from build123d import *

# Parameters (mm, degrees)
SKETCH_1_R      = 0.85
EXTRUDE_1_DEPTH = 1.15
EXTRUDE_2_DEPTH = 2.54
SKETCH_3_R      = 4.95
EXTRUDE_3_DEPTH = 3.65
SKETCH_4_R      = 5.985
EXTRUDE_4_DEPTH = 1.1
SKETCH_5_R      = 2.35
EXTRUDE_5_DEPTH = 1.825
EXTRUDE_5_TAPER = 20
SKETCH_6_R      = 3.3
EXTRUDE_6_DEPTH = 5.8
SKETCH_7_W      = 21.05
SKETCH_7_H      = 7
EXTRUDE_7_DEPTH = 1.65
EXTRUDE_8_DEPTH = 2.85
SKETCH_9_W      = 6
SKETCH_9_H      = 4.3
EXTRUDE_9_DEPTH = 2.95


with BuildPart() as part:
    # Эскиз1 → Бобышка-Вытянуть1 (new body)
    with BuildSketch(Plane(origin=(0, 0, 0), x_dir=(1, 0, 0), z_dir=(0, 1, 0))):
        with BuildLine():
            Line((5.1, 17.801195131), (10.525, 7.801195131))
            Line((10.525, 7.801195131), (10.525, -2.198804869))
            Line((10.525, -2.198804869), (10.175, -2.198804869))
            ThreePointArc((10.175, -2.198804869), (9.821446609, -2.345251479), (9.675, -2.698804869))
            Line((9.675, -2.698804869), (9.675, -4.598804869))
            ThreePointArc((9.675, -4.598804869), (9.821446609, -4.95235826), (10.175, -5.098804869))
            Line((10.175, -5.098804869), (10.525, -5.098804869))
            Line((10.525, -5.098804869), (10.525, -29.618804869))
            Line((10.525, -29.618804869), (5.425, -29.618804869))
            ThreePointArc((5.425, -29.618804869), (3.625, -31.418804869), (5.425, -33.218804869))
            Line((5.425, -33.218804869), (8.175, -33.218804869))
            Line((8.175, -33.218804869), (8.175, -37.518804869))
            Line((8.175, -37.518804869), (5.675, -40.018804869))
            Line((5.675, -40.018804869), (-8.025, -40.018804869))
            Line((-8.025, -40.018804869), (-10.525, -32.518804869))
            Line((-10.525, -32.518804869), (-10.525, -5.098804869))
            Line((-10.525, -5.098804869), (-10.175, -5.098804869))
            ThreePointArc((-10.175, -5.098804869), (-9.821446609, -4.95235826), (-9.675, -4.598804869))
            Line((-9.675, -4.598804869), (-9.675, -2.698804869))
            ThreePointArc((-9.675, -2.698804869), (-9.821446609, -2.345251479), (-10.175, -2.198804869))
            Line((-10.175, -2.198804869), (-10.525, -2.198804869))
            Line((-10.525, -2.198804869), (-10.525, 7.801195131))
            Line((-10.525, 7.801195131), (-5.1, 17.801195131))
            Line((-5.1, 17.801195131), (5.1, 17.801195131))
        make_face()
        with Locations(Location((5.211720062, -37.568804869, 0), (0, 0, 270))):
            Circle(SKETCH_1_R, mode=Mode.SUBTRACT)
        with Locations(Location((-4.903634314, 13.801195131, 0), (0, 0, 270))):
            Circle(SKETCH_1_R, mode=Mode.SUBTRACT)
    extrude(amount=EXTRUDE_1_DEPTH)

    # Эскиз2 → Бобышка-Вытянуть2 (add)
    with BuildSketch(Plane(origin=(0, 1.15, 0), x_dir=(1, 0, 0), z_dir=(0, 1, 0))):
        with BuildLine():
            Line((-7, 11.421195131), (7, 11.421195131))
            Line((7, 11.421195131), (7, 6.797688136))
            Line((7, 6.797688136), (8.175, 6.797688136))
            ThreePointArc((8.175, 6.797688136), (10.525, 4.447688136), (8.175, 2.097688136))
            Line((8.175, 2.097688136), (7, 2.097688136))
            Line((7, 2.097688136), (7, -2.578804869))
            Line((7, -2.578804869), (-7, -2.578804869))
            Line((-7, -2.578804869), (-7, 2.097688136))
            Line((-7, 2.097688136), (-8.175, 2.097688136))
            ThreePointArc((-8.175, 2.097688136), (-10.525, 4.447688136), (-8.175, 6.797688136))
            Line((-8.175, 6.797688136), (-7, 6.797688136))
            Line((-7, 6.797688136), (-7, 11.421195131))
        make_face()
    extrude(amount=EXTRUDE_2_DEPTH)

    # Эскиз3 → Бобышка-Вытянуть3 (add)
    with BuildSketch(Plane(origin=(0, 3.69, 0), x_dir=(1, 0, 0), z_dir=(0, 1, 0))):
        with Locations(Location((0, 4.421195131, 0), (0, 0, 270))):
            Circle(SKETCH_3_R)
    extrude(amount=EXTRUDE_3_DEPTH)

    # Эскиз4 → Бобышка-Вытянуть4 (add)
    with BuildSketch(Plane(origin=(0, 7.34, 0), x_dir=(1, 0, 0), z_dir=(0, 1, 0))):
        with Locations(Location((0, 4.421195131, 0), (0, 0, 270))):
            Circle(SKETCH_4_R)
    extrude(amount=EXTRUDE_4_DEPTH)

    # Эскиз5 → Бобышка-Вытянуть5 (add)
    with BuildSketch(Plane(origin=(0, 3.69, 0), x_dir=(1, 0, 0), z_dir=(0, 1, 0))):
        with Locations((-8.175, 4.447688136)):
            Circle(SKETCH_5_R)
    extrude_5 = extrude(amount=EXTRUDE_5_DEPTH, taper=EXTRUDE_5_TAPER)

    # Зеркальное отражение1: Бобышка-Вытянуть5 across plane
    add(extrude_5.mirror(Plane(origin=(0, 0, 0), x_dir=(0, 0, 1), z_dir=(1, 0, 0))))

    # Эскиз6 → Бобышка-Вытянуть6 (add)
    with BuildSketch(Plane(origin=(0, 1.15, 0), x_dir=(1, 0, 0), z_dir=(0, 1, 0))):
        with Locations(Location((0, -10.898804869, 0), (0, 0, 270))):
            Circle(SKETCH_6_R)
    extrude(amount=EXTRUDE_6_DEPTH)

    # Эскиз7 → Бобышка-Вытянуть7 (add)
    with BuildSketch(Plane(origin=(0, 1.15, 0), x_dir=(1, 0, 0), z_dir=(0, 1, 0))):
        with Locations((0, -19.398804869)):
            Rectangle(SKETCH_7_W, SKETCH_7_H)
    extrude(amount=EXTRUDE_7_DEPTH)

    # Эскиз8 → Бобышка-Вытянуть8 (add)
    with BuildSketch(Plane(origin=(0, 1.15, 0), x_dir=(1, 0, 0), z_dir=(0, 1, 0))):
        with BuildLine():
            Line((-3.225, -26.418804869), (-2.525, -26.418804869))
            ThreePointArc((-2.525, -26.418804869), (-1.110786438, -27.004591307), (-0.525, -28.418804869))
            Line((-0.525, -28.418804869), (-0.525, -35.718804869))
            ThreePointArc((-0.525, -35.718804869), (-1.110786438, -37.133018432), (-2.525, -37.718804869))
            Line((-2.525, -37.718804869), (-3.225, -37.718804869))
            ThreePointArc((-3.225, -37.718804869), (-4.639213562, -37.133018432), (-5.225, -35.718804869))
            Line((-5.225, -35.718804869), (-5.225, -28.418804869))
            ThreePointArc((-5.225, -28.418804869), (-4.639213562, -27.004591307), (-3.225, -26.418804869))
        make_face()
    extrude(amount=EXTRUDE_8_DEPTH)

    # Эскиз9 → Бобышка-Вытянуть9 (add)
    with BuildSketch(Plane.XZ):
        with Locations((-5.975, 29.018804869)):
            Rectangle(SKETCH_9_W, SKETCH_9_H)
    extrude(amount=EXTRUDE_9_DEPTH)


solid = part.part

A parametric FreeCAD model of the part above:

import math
import FreeCAD as App
import Part
import Sketcher
from FreeCAD import Vector
Q = App.Units.Quantity

doc = App.newDocument("Part")
params = doc.addObject("Spreadsheet::Sheet", "Params")
for row, (alias, value) in enumerate([
    ("sketch1_diameter", "1.7 mm"),
    ("sketch1_radius", "0.5 mm"),
    ("sketch1_radius2", "1.8 mm"),
    ("sketch1_height", "10 mm"),
    ("sketch1_width", "10.2 mm"),
    ("pad1_length", "1.15 mm"),
    ("sketch2_width", "14 mm"),
    ("sketch2_radius", "2.35 mm"),
    ("pad2_length", "2.54 mm"),
    ("sketch3_diameter", "9.9 mm"),
    ("pad3_length", "3.65 mm"),
    ("sketch4_diameter", "11.97 mm"),
    ("pad4_length", "1.1 mm"),
    ("sketch5_diameter", "4.7 mm"),
    ("pad5_length", "1.825 mm"),
    ("pad5_taper", "-20 deg"),
    ("sketch6_diameter", "6.6 mm"),
    ("pad6_length", "5.8 mm"),
    ("sketch7_height", "7 mm"),
    ("sketch7_width", "21.05 mm"),
    ("pad7_length", "1.65 mm"),
    ("sketch8_radius", "2 mm"),
    ("sketch8_width", "0.7 mm"),
    ("sketch8_height", "7.3 mm"),
    ("pad8_length", "2.85 mm"),
    ("sketch9_width", "6 mm"),
    ("sketch9_height", "4.3 mm"),
    ("pad9_length", "2.95 mm"),
], start=1):
    params.set(f"A{row}", alias)
    params.set(f"B{row}", "=" + value)
    params.setAlias(f"B{row}", alias)

body = doc.addObject("PartDesign::Body", "Body")

# Sketch on XZ plane
sketch1 = body.newObject("Sketcher::SketchObject", "Sketch")
sketch1.AttachmentSupport = (doc.getObject("XZ_Plane"), [""])
sketch1.MapMode = "FlatFace"
sketch1.addGeometry(Part.LineSegment(Vector(10.53, -7.8, 0), Vector(5.1, -17.8, 0)), False)
sketch1.addGeometry(Part.LineSegment(Vector(5.1, -17.8, 0), Vector(-5.1, -17.8, 0)), False)
sketch1.addGeometry(Part.LineSegment(Vector(-5.1, -17.8, 0), Vector(-10.53, -7.8, 0)), False)
sketch1.addGeometry(Part.LineSegment(Vector(-10.53, -7.8, 0), Vector(-10.53, 2.2, 0)), False)
sketch1.addGeometry(Part.LineSegment(Vector(-10.53, 2.2, 0), Vector(-10.18, 2.2, 0)), False)
sketch1.addGeometry(Part.ArcOfCircle(Part.Circle(Vector(-10.18, 2.7, 0), Vector(0, 0, 1), 0.5), math.radians(-90), math.radians(0)), False)
sketch1.addGeometry(Part.LineSegment(Vector(-9.68, 2.7, 0), Vector(-9.68, 4.6, 0)), False)
sketch1.addGeometry(Part.ArcOfCircle(Part.Circle(Vector(-10.17, 4.6, 0), Vector(0, 0, 1), 0.5), math.radians(0), math.radians(90)), False)
sketch1.addGeometry(Part.LineSegment(Vector(-10.18, 5.1, 0), Vector(-10.53, 5.1, 0)), False)
sketch1.addGeometry(Part.LineSegment(Vector(-10.53, 5.1, 0), Vector(-10.53, 32.52, 0)), False)
sketch1.addGeometry(Part.LineSegment(Vector(-10.53, 32.52, 0), Vector(-8.03, 40.02, 0)), False)
sketch1.addGeometry(Part.LineSegment(Vector(-8.03, 40.02, 0), Vector(5.67, 40.02, 0)), False)
sketch1.addGeometry(Part.LineSegment(Vector(5.67, 40.02, 0), Vector(8.18, 37.52, 0)), False)
sketch1.addGeometry(Part.LineSegment(Vector(8.18, 37.52, 0), Vector(8.18, 33.22, 0)), False)
sketch1.addGeometry(Part.LineSegment(Vector(8.18, 33.22, 0), Vector(5.42, 33.22, 0)), False)
sketch1.addGeometry(Part.ArcOfCircle(Part.Circle(Vector(5.42, 31.42, 0), Vector(0, 0, 1), 1.8), math.radians(90), math.radians(270)), False)
sketch1.addGeometry(Part.LineSegment(Vector(5.42, 29.62, 0), Vector(10.53, 29.62, 0)), False)
sketch1.addGeometry(Part.LineSegment(Vector(10.53, 29.62, 0), Vector(10.53, 5.1, 0)), False)
sketch1.addGeometry(Part.LineSegment(Vector(10.53, 5.1, 0), Vector(10.18, 5.1, 0)), False)
sketch1.addGeometry(Part.ArcOfCircle(Part.Circle(Vector(10.17, 4.6, 0), Vector(0, 0, 1), 0.5), math.radians(90), math.radians(180)), False)
sketch1.addGeometry(Part.LineSegment(Vector(9.68, 4.6, 0), Vector(9.68, 2.7, 0)), False)
sketch1.addGeometry(Part.ArcOfCircle(Part.Circle(Vector(10.18, 2.7, 0), Vector(0, 0, 1), 0.5), math.radians(180), math.radians(270)), False)
sketch1.addGeometry(Part.LineSegment(Vector(10.18, 2.2, 0), Vector(10.53, 2.2, 0)), False)
sketch1.addGeometry(Part.LineSegment(Vector(10.53, 2.2, 0), Vector(10.53, -7.8, 0)), False)
sketch1.addGeometry(Part.Circle(Vector(5.21, 37.57, 0), Vector(0, 0, 1), 0.85), False)
sketch1.addGeometry(Part.Circle(Vector(-4.9, -13.8, 0), Vector(0, 0, 1), 0.85), False)
sketch1.addConstraint(Sketcher.Constraint("Coincident", 0, 2, 1, 1))
sketch1.addConstraint(Sketcher.Constraint("Coincident", 1, 2, 2, 1))
sketch1.addConstraint(Sketcher.Constraint("Coincident", 2, 2, 3, 1))
sketch1.addConstraint(Sketcher.Constraint("Coincident", 3, 2, 4, 1))
sketch1.addConstraint(Sketcher.Constraint("Tangent", 4, 2, 5, 1))
sketch1.addConstraint(Sketcher.Constraint("Tangent", 5, 2, 6, 1))
sketch1.addConstraint(Sketcher.Constraint("Tangent", 6, 2, 7, 1))
sketch1.addConstraint(Sketcher.Constraint("Tangent", 7, 2, 8, 1))
sketch1.addConstraint(Sketcher.Constraint("Coincident", 8, 2, 9, 1))
sketch1.addConstraint(Sketcher.Constraint("Coincident", 9, 2, 10, 1))
sketch1.addConstraint(Sketcher.Constraint("Coincident", 10, 2, 11, 1))
sketch1.addConstraint(Sketcher.Constraint("Coincident", 11, 2, 12, 1))
sketch1.addConstraint(Sketcher.Constraint("Coincident", 12, 2, 13, 1))
sketch1.addConstraint(Sketcher.Constraint("Coincident", 13, 2, 14, 1))
sketch1.addConstraint(Sketcher.Constraint("Tangent", 14, 2, 15, 1))
sketch1.addConstraint(Sketcher.Constraint("Tangent", 15, 2, 16, 1))
sketch1.addConstraint(Sketcher.Constraint("Coincident", 16, 2, 17, 1))
sketch1.addConstraint(Sketcher.Constraint("Coincident", 17, 2, 18, 1))
sketch1.addConstraint(Sketcher.Constraint("Tangent", 18, 2, 19, 1))
sketch1.addConstraint(Sketcher.Constraint("Tangent", 19, 2, 20, 1))
sketch1.addConstraint(Sketcher.Constraint("Tangent", 20, 2, 21, 1))
sketch1.addConstraint(Sketcher.Constraint("Tangent", 21, 2, 22, 1))
sketch1.addConstraint(Sketcher.Constraint("Coincident", 22, 2, 23, 1))
sketch1.addConstraint(Sketcher.Constraint("Coincident", 23, 2, 0, 1))
sketch1.addConstraint(Sketcher.Constraint("Horizontal", 1))
sketch1.addConstraint(Sketcher.Constraint("Vertical", 3))
sketch1.addConstraint(Sketcher.Constraint("Horizontal", 4))
sketch1.addConstraint(Sketcher.Constraint("Vertical", 6))
sketch1.addConstraint(Sketcher.Constraint("Horizontal", 8))
sketch1.addConstraint(Sketcher.Constraint("Vertical", 9))
sketch1.addConstraint(Sketcher.Constraint("Horizontal", 11))
sketch1.addConstraint(Sketcher.Constraint("Vertical", 13))
sketch1.addConstraint(Sketcher.Constraint("Horizontal", 14))
sketch1.addConstraint(Sketcher.Constraint("Horizontal", 16))
sketch1.addConstraint(Sketcher.Constraint("Vertical", 17))
sketch1.addConstraint(Sketcher.Constraint("Horizontal", 18))
sketch1.addConstraint(Sketcher.Constraint("Vertical", 20))
sketch1.addConstraint(Sketcher.Constraint("Horizontal", 22))
sketch1.addConstraint(Sketcher.Constraint("Vertical", 23))
sketch1.addConstraint(Sketcher.Constraint("Equal", 5, 7))
sketch1.addConstraint(Sketcher.Constraint("Equal", 7, 19))
sketch1.addConstraint(Sketcher.Constraint("Equal", 19, 21))
sketch1.addConstraint(Sketcher.Constraint("Equal", 24, 25))
sketch1.addConstraint(Sketcher.Constraint("Symmetric", 7, 3, 19, 3, -2))
sketch1.addConstraint(Sketcher.Constraint("Symmetric", 3, 2, 22, 2, -2))
sketch1.addConstraint(Sketcher.Constraint("Horizontal", 2, 2, 23, 2))
sketch1.addConstraint(Sketcher.Constraint("Vertical", 3, 2, 8, 2))
sketch1.addConstraint(Sketcher.Constraint("Vertical", 17, 2, 22, 2))
sketch1.addConstraint(Sketcher.Constraint("Equal", 0, 2))
sketch1.addConstraint(Sketcher.Constraint("Diameter", 24, Q("1.7 mm")))
sketch1.addConstraint(Sketcher.Constraint("Radius", 5, Q("0.5 mm")))
sketch1.addConstraint(Sketcher.Constraint("Radius", 15, Q("1.8 mm")))
sketch1.addConstraint(Sketcher.Constraint("DistanceY", 3, 1, 3, 2, Q("10 mm")))
sketch1.addConstraint(Sketcher.Constraint("Angle", 12, Q("-45 deg")))
sketch1.addConstraint(Sketcher.Constraint("DistanceX", 1, 2, 1, 1, Q("10.2 mm")))
sketch1.addConstraint(Sketcher.Constraint("DistanceX", 11, 1, 11, 2, Q("13.7 mm")))
sketch1.addConstraint(Sketcher.Constraint("DistanceX", 16, 1, 16, 2, Q("5.1 mm")))
sketch1.addConstraint(Sketcher.Constraint("DistanceY", 6, 1, 6, 2, Q("1.9 mm")))
sketch1.addConstraint(Sketcher.Constraint("DistanceY", 13, 2, 13, 1, Q("4.3 mm")))
sketch1.addConstraint(Sketcher.Constraint("DistanceY", 0, 2, 25, 3, Q("4 mm")))
sketch1.addConstraint(Sketcher.Constraint("DistanceY", 25, 3, 2, 2, Q("6 mm")))
sketch1.addConstraint(Sketcher.Constraint("DistanceY", 9, 2, 12, 2, Q("5 mm")))
sketch1.addConstraint(Sketcher.Constraint("DistanceX", 4, 1, 4, 2, Q("0.35 mm")))
sketch1.addConstraint(Sketcher.Constraint("DistanceX", 14, 2, 14, 1, Q("2.75 mm")))
sketch1.addConstraint(Sketcher.Constraint("DistanceY", 9, 1, 9, 2, Q("27.42 mm")))
sketch1.addConstraint(Sketcher.Constraint("DistanceX", 7, 3, 15, 3, Q("15.6 mm")))
sketch1.addConstraint(Sketcher.Constraint("DistanceX", 9, 2, 10, 2, Q("2.5 mm")))
sketch1.addConstraint(Sketcher.Constraint("DistanceY", 15, 3, 24, 3, Q("6.15 mm")))
sketch1.addConstraint(Sketcher.Constraint("DistanceX", -1, 1, 24, 3, Q("5.21172 mm")))
sketch1.addConstraint(Sketcher.Constraint("DistanceY", -1, 1, 5, 3, Q("2.698805 mm")))
sketch1.addConstraint(Sketcher.Constraint("DistanceX", 25, 3, -1, 1, Q("4.903634 mm")))
sketch1.setExpression("Constraints[49]", "Params.sketch1_diameter")
sketch1.setExpression("Constraints[50]", "Params.sketch1_radius")
sketch1.setExpression("Constraints[51]", "Params.sketch1_radius2")
sketch1.setExpression("Constraints[52]", "Params.sketch1_height")
sketch1.setExpression("Constraints[54]", "Params.sketch1_width")
pad1 = body.newObject("PartDesign::Pad", "Pad")
pad1.Profile = sketch1
pad1.setExpression("Length", "Params.pad1_length")
pad1.Reversed = True

# Sketch on XZ plane
sketch2 = body.newObject("Sketcher::SketchObject", "Sketch001")
sketch2.AttachmentSupport = (doc.getObject("XZ_Plane"), [""])
sketch2.MapMode = "FlatFace"
sketch2.AttachmentOffset = App.Placement(Vector(0, 0, -1.15), App.Rotation())
sketch2.addGeometry(Part.LineSegment(Vector(7, -11.4, 0), Vector(-7, -11.4, 0)), False)
sketch2.addGeometry(Part.LineSegment(Vector(-7, -11.4, 0), Vector(-7, -6.8, 0)), False)
sketch2.addGeometry(Part.LineSegment(Vector(-7, -6.8, 0), Vector(-8.2, -6.8, 0)), False)
sketch2.addGeometry(Part.ArcOfCircle(Part.Circle(Vector(-8.2, -4.4, 0), Vector(0, 0, 1), 2.4), math.radians(90), math.radians(270)), False)
sketch2.addGeometry(Part.LineSegment(Vector(-8.2, -2.1, 0), Vector(-7, -2.1, 0)), False)
sketch2.addGeometry(Part.LineSegment(Vector(-7, -2.1, 0), Vector(-7, 2.6, 0)), False)
sketch2.addGeometry(Part.LineSegment(Vector(-7, 2.6, 0), Vector(7, 2.6, 0)), False)
sketch2.addGeometry(Part.LineSegment(Vector(7, 2.6, 0), Vector(7, -2.1, 0)), False)
sketch2.addGeometry(Part.LineSegment(Vector(7, -2.1, 0), Vector(8.2, -2.1, 0)), False)
sketch2.addGeometry(Part.ArcOfCircle(Part.Circle(Vector(8.2, -4.4, 0), Vector(0, 0, 1), 2.4), math.radians(-90), math.radians(90)), False)
sketch2.addGeometry(Part.LineSegment(Vector(8.2, -6.8, 0), Vector(7, -6.8, 0)), False)
sketch2.addGeometry(Part.LineSegment(Vector(7, -6.8, 0), Vector(7, -11.4, 0)), False)
sketch2.addConstraint(Sketcher.Constraint("Coincident", 0, 2, 1, 1))
sketch2.addConstraint(Sketcher.Constraint("Coincident", 1, 2, 2, 1))
sketch2.addConstraint(Sketcher.Constraint("Tangent", 2, 2, 3, 2))
sketch2.addConstraint(Sketcher.Constraint("Tangent", 3, 1, 4, 1))
sketch2.addConstraint(Sketcher.Constraint("Coincident", 4, 2, 5, 1))
sketch2.addConstraint(Sketcher.Constraint("Coincident", 5, 2, 6, 1))
sketch2.addConstraint(Sketcher.Constraint("Coincident", 6, 2, 7, 1))
sketch2.addConstraint(Sketcher.Constraint("Coincident", 7, 2, 8, 1))
sketch2.addConstraint(Sketcher.Constraint("Tangent", 8, 2, 9, 2))
sketch2.addConstraint(Sketcher.Constraint("Tangent", 9, 1, 10, 1))
sketch2.addConstraint(Sketcher.Constraint("Coincident", 10, 2, 11, 1))
sketch2.addConstraint(Sketcher.Constraint("Coincident", 11, 2, 0, 1))
sketch2.addConstraint(Sketcher.Constraint("Horizontal", 0))
sketch2.addConstraint(Sketcher.Constraint("Vertical", 1))
sketch2.addConstraint(Sketcher.Constraint("Horizontal", 2))
sketch2.addConstraint(Sketcher.Constraint("Horizontal", 4))
sketch2.addConstraint(Sketcher.Constraint("Vertical", 5))
sketch2.addConstraint(Sketcher.Constraint("Horizontal", 6))
sketch2.addConstraint(Sketcher.Constraint("Vertical", 7))
sketch2.addConstraint(Sketcher.Constraint("Horizontal", 8))
sketch2.addConstraint(Sketcher.Constraint("Horizontal", 10))
sketch2.addConstraint(Sketcher.Constraint("Vertical", 11))
sketch2.addConstraint(Sketcher.Constraint("Equal", 3, 9))
sketch2.addConstraint(Sketcher.Constraint("Symmetric", 3, 3, 9, 3, -2))
sketch2.addConstraint(Sketcher.Constraint("Vertical", 1, 2, 4, 2))
sketch2.addConstraint(Sketcher.Constraint("Vertical", 7, 2, 10, 2))
sketch2.addConstraint(Sketcher.Constraint("Equal", 4, 8))
sketch2.addConstraint(Sketcher.Constraint("DistanceX", 0, 2, 0, 1, Q("14 mm")))
sketch2.addConstraint(Sketcher.Constraint("Radius", 3, Q("2.35 mm")))
sketch2.addConstraint(Sketcher.Constraint("DistanceX", 2, 2, 2, 1, Q("1.175 mm")))
sketch2.addConstraint(Sketcher.Constraint("DistanceY", 1, 1, 1, 2, Q("4.623507 mm")))
sketch2.addConstraint(Sketcher.Constraint("DistanceY", 5, 1, 5, 2, Q("4.676493 mm")))
sketch2.addConstraint(Sketcher.Constraint("DistanceY", 3, 3, -1, 1, Q("4.447688 mm")))
sketch2.setExpression("Constraints[27]", "Params.sketch2_width")
sketch2.setExpression("Constraints[28]", "Params.sketch2_radius")
pad2 = body.newObject("PartDesign::Pad", "Pad001")
pad2.Profile = sketch2
pad2.setExpression("Length", "Params.pad2_length")
pad2.Reversed = True

# Sketch on XZ plane
sketch3 = body.newObject("Sketcher::SketchObject", "Sketch002")
sketch3.AttachmentSupport = (doc.getObject("XZ_Plane"), [""])
sketch3.MapMode = "FlatFace"
sketch3.AttachmentOffset = App.Placement(Vector(0, 0, -3.69), App.Rotation())
sketch3.addGeometry(Part.Circle(Vector(0, -4.4, 0), Vector(0, 0, 1), 5), False)
sketch3.addConstraint(Sketcher.Constraint("PointOnObject", 0, 3, -2))
sketch3.addConstraint(Sketcher.Constraint("Diameter", 0, Q("9.9 mm")))
sketch3.addConstraint(Sketcher.Constraint("DistanceY", 0, 3, -1, 1, Q("4.421195 mm")))
sketch3.setExpression("Constraints[1]", "Params.sketch3_diameter")
pad3 = body.newObject("PartDesign::Pad", "Pad002")
pad3.Profile = sketch3
pad3.setExpression("Length", "Params.pad3_length")
pad3.Reversed = True

# Sketch on XZ plane
sketch4 = body.newObject("Sketcher::SketchObject", "Sketch003")
sketch4.AttachmentSupport = (doc.getObject("XZ_Plane"), [""])
sketch4.MapMode = "FlatFace"
sketch4.AttachmentOffset = App.Placement(Vector(0, 0, -7.34), App.Rotation())
sketch4.addGeometry(Part.Circle(Vector(0, -4, 0), Vector(0, 0, 1), 6), False)
sketch4.addConstraint(Sketcher.Constraint("PointOnObject", 0, 3, -2))
sketch4.addConstraint(Sketcher.Constraint("Diameter", 0, Q("11.97 mm")))
sketch4.addConstraint(Sketcher.Constraint("DistanceY", 0, 3, -1, 1, Q("4.421195 mm")))
sketch4.setExpression("Constraints[1]", "Params.sketch4_diameter")
pad4 = body.newObject("PartDesign::Pad", "Pad003")
pad4.Profile = sketch4
pad4.setExpression("Length", "Params.pad4_length")
pad4.Reversed = True

# Sketch on XZ plane
sketch5 = body.newObject("Sketcher::SketchObject", "Sketch004")
sketch5.AttachmentSupport = (doc.getObject("XZ_Plane"), [""])
sketch5.MapMode = "FlatFace"
sketch5.AttachmentOffset = App.Placement(Vector(0, 0, -3.69), App.Rotation())
sketch5.addGeometry(Part.Circle(Vector(-8.2, -4.4, 0), Vector(0, 0, 1), 2.4), False)
sketch5.addConstraint(Sketcher.Constraint("Diameter", 0, Q("4.7 mm")))
sketch5.addConstraint(Sketcher.Constraint("DistanceX", 0, 3, -1, 1, Q("8.175 mm")))
sketch5.addConstraint(Sketcher.Constraint("DistanceY", 0, 3, -1, 1, Q("4.447688 mm")))
sketch5.setExpression("Constraints[0]", "Params.sketch5_diameter")
pad5 = body.newObject("PartDesign::Pad", "Pad004")
pad5.Profile = sketch5
pad5.setExpression("Length", "Params.pad5_length")
pad5.Reversed = True
pad5.setExpression("TaperAngle", "Params.pad5_taper")
doc.recompute()

mirrored = body.newObject("PartDesign::Mirrored", "Mirrored")
mirrored.Originals = [pad5]
mirrored.MirrorPlane = (doc.getObject("YZ_Plane"), [""])
body.Tip = mirrored

# Sketch on XZ plane
sketch6 = body.newObject("Sketcher::SketchObject", "Sketch005")
sketch6.AttachmentSupport = (doc.getObject("XZ_Plane"), [""])
sketch6.MapMode = "FlatFace"
sketch6.AttachmentOffset = App.Placement(Vector(0, 0, -1.15), App.Rotation())
sketch6.addGeometry(Part.Circle(Vector(0, 10.9, 0), Vector(0, 0, 1), 3.3), False)
sketch6.addConstraint(Sketcher.Constraint("PointOnObject", 0, 3, -2))
sketch6.addConstraint(Sketcher.Constraint("Diameter", 0, Q("6.6 mm")))
sketch6.addConstraint(Sketcher.Constraint("DistanceY", -1, 1, 0, 3, Q("10.898805 mm")))
sketch6.setExpression("Constraints[1]", "Params.sketch6_diameter")
pad6 = body.newObject("PartDesign::Pad", "Pad005")
pad6.Profile = sketch6
pad6.setExpression("Length", "Params.pad6_length")
pad6.Reversed = True

# Sketch on XZ plane
sketch7 = body.newObject("Sketcher::SketchObject", "Sketch006")
sketch7.AttachmentSupport = (doc.getObject("XZ_Plane"), [""])
sketch7.MapMode = "FlatFace"
sketch7.AttachmentOffset = App.Placement(Vector(0, 0, -1.15), App.Rotation())
sketch7.addGeometry(Part.LineSegment(Vector(-11, 16, 0), Vector(-11, 23, 0)), False)
sketch7.addGeometry(Part.LineSegment(Vector(-11, 23, 0), Vector(11, 23, 0)), False)
sketch7.addGeometry(Part.LineSegment(Vector(11, 23, 0), Vector(11, 16, 0)), False)
sketch7.addGeometry(Part.LineSegment(Vector(11, 16, 0), Vector(-11, 16, 0)), False)
sketch7.addConstraint(Sketcher.Constraint("Coincident", 0, 2, 1, 1))
sketch7.addConstraint(Sketcher.Constraint("Coincident", 1, 2, 2, 1))
sketch7.addConstraint(Sketcher.Constraint("Coincident", 2, 2, 3, 1))
sketch7.addConstraint(Sketcher.Constraint("Coincident", 3, 2, 0, 1))
sketch7.addConstraint(Sketcher.Constraint("Vertical", 0))
sketch7.addConstraint(Sketcher.Constraint("Horizontal", 1))
sketch7.addConstraint(Sketcher.Constraint("Vertical", 2))
sketch7.addConstraint(Sketcher.Constraint("Horizontal", 3))
sketch7.addConstraint(Sketcher.Constraint("DistanceY", 0, 1, 0, 2, Q("7 mm")))
sketch7.addConstraint(Sketcher.Constraint("DistanceX", 1, 1, 1, 2, Q("21.05 mm")))
sketch7.addConstraint(Sketcher.Constraint("DistanceX", 0, 2, -1, 1, Q("10.525 mm")))
sketch7.addConstraint(Sketcher.Constraint("DistanceY", -1, 1, 0, 2, Q("22.898805 mm")))
sketch7.setExpression("Constraints[8]", "Params.sketch7_height")
sketch7.setExpression("Constraints[9]", "Params.sketch7_width")
pad7 = body.newObject("PartDesign::Pad", "Pad006")
pad7.Profile = sketch7
pad7.setExpression("Length", "Params.pad7_length")
pad7.Reversed = True

# Sketch on XZ plane
sketch8 = body.newObject("Sketcher::SketchObject", "Sketch007")
sketch8.AttachmentSupport = (doc.getObject("XZ_Plane"), [""])
sketch8.MapMode = "FlatFace"
sketch8.AttachmentOffset = App.Placement(Vector(0, 0, -1.15), App.Rotation())
sketch8.addGeometry(Part.LineSegment(Vector(-2.5, 26.4, 0), Vector(-3.2, 26.4, 0)), False)
sketch8.addGeometry(Part.ArcOfCircle(Part.Circle(Vector(-3.2, 28.4, 0), Vector(0, 0, 1), 2), math.radians(-180), math.radians(-90)), False)
sketch8.addGeometry(Part.LineSegment(Vector(-5.2, 28.4, 0), Vector(-5.2, 35.7, 0)), False)
sketch8.addGeometry(Part.ArcOfCircle(Part.Circle(Vector(-3.2, 35.7, 0), Vector(0, 0, 1), 2), math.radians(90), math.radians(180)), False)
sketch8.addGeometry(Part.LineSegment(Vector(-3.2, 37.7, 0), Vector(-2.5, 37.7, 0)), False)
sketch8.addGeometry(Part.ArcOfCircle(Part.Circle(Vector(-2.5, 35.7, 0), Vector(0, 0, 1), 2), math.radians(0), math.radians(90)), False)
sketch8.addGeometry(Part.LineSegment(Vector(-0.5, 35.7, 0), Vector(-0.5, 28.4, 0)), False)
sketch8.addGeometry(Part.ArcOfCircle(Part.Circle(Vector(-2.5, 28.4, 0), Vector(0, 0, 1), 2), math.radians(-90), math.radians(0)), False)
sketch8.addConstraint(Sketcher.Constraint("Tangent", 0, 2, 1, 2))
sketch8.addConstraint(Sketcher.Constraint("Tangent", 1, 1, 2, 1))
sketch8.addConstraint(Sketcher.Constraint("Tangent", 2, 2, 3, 2))
sketch8.addConstraint(Sketcher.Constraint("Tangent", 3, 1, 4, 1))
sketch8.addConstraint(Sketcher.Constraint("Tangent", 4, 2, 5, 2))
sketch8.addConstraint(Sketcher.Constraint("Tangent", 5, 1, 6, 1))
sketch8.addConstraint(Sketcher.Constraint("Tangent", 6, 2, 7, 2))
sketch8.addConstraint(Sketcher.Constraint("Tangent", 7, 1, 0, 1))
sketch8.addConstraint(Sketcher.Constraint("Horizontal", 0))
sketch8.addConstraint(Sketcher.Constraint("Vertical", 2))
sketch8.addConstraint(Sketcher.Constraint("Horizontal", 4))
sketch8.addConstraint(Sketcher.Constraint("Vertical", 6))
sketch8.addConstraint(Sketcher.Constraint("Equal", 1, 3))
sketch8.addConstraint(Sketcher.Constraint("Equal", 3, 5))
sketch8.addConstraint(Sketcher.Constraint("Equal", 5, 7))
sketch8.addConstraint(Sketcher.Constraint("Radius", 1, Q("2 mm")))
sketch8.addConstraint(Sketcher.Constraint("DistanceX", 0, 2, 0, 1, Q("0.7 mm")))
sketch8.addConstraint(Sketcher.Constraint("DistanceY", 2, 1, 2, 2, Q("7.3 mm")))
sketch8.addConstraint(Sketcher.Constraint("DistanceX", 1, 3, -1, 1, Q("3.225 mm")))
sketch8.addConstraint(Sketcher.Constraint("DistanceY", -1, 1, 1, 3, Q("28.418805 mm")))
sketch8.setExpression("Constraints[15]", "Params.sketch8_radius")
sketch8.setExpression("Constraints[16]", "Params.sketch8_width")
sketch8.setExpression("Constraints[17]", "Params.sketch8_height")
pad8 = body.newObject("PartDesign::Pad", "Pad007")
pad8.Profile = sketch8
pad8.setExpression("Length", "Params.pad8_length")
pad8.Reversed = True

# Sketch on XZ plane
sketch9 = body.newObject("Sketcher::SketchObject", "Sketch008")
sketch9.AttachmentSupport = (doc.getObject("XZ_Plane"), [""])
sketch9.MapMode = "FlatFace"
sketch9.addGeometry(Part.LineSegment(Vector(-9, 31.2, 0), Vector(-9, 26.9, 0)), False)
sketch9.addGeometry(Part.LineSegment(Vector(-9, 26.9, 0), Vector(-3, 26.9, 0)), False)
sketch9.addGeometry(Part.LineSegment(Vector(-3, 26.9, 0), Vector(-3, 31.2, 0)), False)
sketch9.addGeometry(Part.LineSegment(Vector(-3, 31.2, 0), Vector(-9, 31.2, 0)), False)
sketch9.addConstraint(Sketcher.Constraint("Coincident", 0, 2, 1, 1))
sketch9.addConstraint(Sketcher.Constraint("Coincident", 1, 2, 2, 1))
sketch9.addConstraint(Sketcher.Constraint("Coincident", 2, 2, 3, 1))
sketch9.addConstraint(Sketcher.Constraint("Coincident", 3, 2, 0, 1))
sketch9.addConstraint(Sketcher.Constraint("Vertical", 0))
sketch9.addConstraint(Sketcher.Constraint("Horizontal", 1))
sketch9.addConstraint(Sketcher.Constraint("Vertical", 2))
sketch9.addConstraint(Sketcher.Constraint("Horizontal", 3))
sketch9.addConstraint(Sketcher.Constraint("DistanceX", 1, 1, 1, 2, Q("6 mm")))
sketch9.addConstraint(Sketcher.Constraint("DistanceY", 0, 2, 0, 1, Q("4.3 mm")))
sketch9.addConstraint(Sketcher.Constraint("DistanceX", 0, 2, -1, 1, Q("8.975 mm")))
sketch9.addConstraint(Sketcher.Constraint("DistanceY", -1, 1, 0, 2, Q("26.868805 mm")))
sketch9.setExpression("Constraints[8]", "Params.sketch9_width")
sketch9.setExpression("Constraints[9]", "Params.sketch9_height")
pad9 = body.newObject("PartDesign::Pad", "Pad008")
pad9.Profile = sketch9
pad9.setExpression("Length", "Params.pad9_length")

doc.recompute()
